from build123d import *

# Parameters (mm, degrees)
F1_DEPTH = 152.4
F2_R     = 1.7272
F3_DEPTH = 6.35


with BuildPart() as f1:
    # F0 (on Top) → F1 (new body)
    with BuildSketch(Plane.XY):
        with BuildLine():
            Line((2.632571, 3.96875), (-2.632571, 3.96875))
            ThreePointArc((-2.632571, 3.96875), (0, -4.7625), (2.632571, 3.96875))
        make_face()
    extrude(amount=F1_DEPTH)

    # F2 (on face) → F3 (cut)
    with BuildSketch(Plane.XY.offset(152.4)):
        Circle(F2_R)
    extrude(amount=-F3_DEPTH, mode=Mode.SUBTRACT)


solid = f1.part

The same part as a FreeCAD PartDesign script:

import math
import FreeCAD as App
import Part
import Sketcher
Q = App.Units.Quantity

doc = App.newDocument("Part")
body = doc.addObject("PartDesign::Body", "Body")

# Sketch on XY plane
sketch1 = body.newObject("Sketcher::SketchObject", "Sketch")
sketch1.AttachmentSupport = (doc.getObject("XY_Plane"), [""])
sketch1.MapMode = "FlatFace"
sketch1.addGeometry([
    Part.LineSegment(App.Vector(2.632571, 3.96875, 0), App.Vector(-2.632571, 3.96875, 0)),
    Part.ArcOfCircle(Part.Circle(App.Vector(0, 0, 0), App.Vector(0, 0, 1), 4.7625), math.radians(123.557311), math.radians(416.442689)),
], False)
sketch1.addConstraint([
    Sketcher.Constraint("Coincident", 0, 1, 1, 2),
    Sketcher.Constraint("Coincident", 1, 1, 0, 2),
    Sketcher.Constraint("Horizontal", 0),
    Sketcher.Constraint("Coincident", 1, 3, -1, 1),
    Sketcher.Constraint("Radius", 1, Q("0.1875 in")),
    Sketcher.Constraint("DistanceY", -1, 1, 0, 1, Q("0.15625 in")),
])
pad1 = body.newObject("PartDesign::Pad", "Pad")
pad1.Profile = sketch1
pad1.Length = Q("6 in")

# Sketch on XY plane
sketch2 = body.newObject("Sketcher::SketchObject", "Sketch001")
sketch2.AttachmentSupport = (doc.getObject("XY_Plane"), [""])
sketch2.MapMode = "FlatFace"
sketch2.AttachmentOffset = App.Placement(App.Vector(0, 0, 6 * 25.4), App.Rotation())
sketch2.addGeometry(Part.Circle(App.Vector(0, 0, 0), App.Vector(0, 0, 1), 1.7272), False)
sketch2.addConstraint([
    Sketcher.Constraint("Coincident", 0, 3, -1, 1),
    Sketcher.Constraint("Diameter", 0, Q("0.136 in")),
])
pocket1 = body.newObject("PartDesign::Pocket", "Pocket")
pocket1.Profile = sketch2
pocket1.Length = Q("0.25 in")

doc.recompute()
